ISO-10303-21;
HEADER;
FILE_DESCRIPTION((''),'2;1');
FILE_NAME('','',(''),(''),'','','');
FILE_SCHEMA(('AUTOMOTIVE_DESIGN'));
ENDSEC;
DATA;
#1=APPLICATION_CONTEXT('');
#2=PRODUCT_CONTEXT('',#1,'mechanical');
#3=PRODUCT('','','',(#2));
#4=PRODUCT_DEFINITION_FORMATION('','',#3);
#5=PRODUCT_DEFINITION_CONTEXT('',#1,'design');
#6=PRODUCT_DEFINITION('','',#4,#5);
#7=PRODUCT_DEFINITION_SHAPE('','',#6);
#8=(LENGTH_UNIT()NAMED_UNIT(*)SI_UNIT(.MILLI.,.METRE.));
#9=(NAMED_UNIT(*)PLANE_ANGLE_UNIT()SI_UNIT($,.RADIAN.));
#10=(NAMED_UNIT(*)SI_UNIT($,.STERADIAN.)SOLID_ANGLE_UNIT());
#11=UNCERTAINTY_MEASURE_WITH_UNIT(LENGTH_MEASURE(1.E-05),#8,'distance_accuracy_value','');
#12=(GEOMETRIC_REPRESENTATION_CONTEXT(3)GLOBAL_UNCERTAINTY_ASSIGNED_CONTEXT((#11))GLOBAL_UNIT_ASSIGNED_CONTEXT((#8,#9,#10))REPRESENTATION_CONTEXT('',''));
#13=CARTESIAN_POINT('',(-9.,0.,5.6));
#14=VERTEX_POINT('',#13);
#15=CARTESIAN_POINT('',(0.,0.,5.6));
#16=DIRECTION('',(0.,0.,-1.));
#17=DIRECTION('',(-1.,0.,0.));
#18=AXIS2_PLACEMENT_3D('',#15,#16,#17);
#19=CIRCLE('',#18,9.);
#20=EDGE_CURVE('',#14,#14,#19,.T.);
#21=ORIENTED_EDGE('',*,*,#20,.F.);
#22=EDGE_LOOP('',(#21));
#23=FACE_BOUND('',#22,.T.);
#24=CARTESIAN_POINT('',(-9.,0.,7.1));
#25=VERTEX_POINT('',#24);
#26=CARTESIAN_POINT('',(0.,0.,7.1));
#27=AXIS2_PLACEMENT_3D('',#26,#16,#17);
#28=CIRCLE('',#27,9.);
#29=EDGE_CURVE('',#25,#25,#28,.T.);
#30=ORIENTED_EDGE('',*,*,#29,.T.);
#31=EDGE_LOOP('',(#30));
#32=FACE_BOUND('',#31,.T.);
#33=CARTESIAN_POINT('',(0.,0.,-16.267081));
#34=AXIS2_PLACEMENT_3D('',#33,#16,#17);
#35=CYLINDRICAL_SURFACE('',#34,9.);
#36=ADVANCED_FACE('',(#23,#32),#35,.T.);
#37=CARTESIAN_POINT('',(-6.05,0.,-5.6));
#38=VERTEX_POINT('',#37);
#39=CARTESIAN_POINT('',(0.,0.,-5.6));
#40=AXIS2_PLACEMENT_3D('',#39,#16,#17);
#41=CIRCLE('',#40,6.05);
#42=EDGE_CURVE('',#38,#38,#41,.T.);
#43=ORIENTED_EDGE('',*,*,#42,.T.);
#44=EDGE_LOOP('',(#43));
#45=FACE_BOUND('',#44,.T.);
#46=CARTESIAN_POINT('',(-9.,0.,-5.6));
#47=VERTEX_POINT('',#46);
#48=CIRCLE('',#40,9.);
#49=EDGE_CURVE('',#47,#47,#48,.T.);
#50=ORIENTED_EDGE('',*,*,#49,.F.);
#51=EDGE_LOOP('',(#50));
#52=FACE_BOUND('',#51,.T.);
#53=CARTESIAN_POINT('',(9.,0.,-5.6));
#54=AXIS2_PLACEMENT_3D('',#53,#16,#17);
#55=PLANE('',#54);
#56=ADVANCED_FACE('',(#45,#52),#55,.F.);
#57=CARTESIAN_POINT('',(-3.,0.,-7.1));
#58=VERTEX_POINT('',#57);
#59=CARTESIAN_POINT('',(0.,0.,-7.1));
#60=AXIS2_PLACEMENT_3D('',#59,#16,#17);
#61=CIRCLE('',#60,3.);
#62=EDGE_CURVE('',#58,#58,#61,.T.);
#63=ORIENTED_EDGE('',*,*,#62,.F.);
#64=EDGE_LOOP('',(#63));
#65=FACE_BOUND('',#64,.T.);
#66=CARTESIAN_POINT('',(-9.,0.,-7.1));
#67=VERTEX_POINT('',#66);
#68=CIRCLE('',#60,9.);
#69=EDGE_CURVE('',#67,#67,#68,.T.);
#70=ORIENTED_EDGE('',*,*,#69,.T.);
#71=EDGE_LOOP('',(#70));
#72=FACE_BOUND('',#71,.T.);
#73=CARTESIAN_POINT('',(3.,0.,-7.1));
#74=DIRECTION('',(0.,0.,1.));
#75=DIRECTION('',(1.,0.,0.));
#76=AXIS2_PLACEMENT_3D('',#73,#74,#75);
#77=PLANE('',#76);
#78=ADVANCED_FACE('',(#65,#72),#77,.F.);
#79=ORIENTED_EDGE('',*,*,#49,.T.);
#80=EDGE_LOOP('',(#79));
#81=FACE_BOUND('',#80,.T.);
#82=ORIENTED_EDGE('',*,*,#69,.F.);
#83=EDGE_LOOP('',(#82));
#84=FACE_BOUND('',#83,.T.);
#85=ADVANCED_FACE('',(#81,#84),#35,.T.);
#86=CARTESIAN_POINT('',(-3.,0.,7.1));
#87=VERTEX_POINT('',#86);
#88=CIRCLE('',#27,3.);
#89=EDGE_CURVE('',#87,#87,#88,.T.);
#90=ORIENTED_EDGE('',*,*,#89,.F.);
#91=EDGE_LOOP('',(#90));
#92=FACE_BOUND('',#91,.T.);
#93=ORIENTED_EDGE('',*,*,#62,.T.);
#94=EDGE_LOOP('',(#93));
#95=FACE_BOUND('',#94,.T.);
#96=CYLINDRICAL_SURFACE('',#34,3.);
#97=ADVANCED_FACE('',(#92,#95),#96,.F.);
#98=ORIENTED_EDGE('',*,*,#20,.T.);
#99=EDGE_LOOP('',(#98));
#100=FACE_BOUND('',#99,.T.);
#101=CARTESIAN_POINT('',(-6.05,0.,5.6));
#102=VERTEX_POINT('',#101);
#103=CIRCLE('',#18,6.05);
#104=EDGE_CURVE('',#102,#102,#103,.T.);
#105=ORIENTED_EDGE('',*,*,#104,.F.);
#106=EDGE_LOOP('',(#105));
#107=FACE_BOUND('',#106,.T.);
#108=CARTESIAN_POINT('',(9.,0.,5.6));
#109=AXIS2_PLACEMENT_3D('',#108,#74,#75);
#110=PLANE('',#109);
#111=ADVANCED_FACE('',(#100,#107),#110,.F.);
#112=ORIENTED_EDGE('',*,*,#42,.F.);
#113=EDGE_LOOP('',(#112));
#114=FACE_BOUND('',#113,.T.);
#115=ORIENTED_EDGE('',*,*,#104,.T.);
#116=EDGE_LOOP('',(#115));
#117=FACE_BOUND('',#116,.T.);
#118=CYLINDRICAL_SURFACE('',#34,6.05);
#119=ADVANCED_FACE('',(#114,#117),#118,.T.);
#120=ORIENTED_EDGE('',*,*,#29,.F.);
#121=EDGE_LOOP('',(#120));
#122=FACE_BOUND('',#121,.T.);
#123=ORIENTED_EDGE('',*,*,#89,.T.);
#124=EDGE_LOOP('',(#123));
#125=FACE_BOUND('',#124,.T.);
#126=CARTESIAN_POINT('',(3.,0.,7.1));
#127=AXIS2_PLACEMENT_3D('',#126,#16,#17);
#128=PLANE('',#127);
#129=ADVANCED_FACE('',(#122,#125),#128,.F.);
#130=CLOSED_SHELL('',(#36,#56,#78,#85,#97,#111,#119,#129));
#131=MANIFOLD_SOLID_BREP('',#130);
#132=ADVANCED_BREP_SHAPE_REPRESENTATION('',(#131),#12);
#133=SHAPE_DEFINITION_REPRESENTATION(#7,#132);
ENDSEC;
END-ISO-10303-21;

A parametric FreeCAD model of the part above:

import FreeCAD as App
import Part
import Sketcher
from FreeCAD import Vector
Q = App.Units.Quantity

doc = App.newDocument("Part")
body = doc.addObject("PartDesign::Body", "Body")

# Sketch on XZ plane
sketch1 = body.newObject("Sketcher::SketchObject", "Sketch")
sketch1.AttachmentSupport = (doc.getObject("XZ_Plane"), [""])
sketch1.MapMode = "FlatFace"
sketch1.addGeometry([
    Part.LineSegment(Vector(3, -7.1, 0), Vector(3, 7.1, 0)),  # 0
    Part.LineSegment(Vector(3, 7.1, 0), Vector(9, 7.1, 0)),  # 1
    Part.LineSegment(Vector(9, 7.1, 0), Vector(9, 5.6, 0)),  # 2
    Part.LineSegment(Vector(9, 5.6, 0), Vector(6, 5.6, 0)),  # 3
    Part.LineSegment(Vector(6, 5.6, 0), Vector(6, -5.6, 0)),  # 4
    Part.LineSegment(Vector(6, -5.6, 0), Vector(9, -5.6, 0)),  # 5
    Part.LineSegment(Vector(9, -5.6, 0), Vector(9, -7.1, 0)),  # 6
    Part.LineSegment(Vector(9, -7.1, 0), Vector(3, -7.1, 0)),  # 7
], False)
sketch1.addConstraint([
    Sketcher.Constraint("Coincident", 0, 2, 1, 1),
    Sketcher.Constraint("Coincident", 1, 2, 2, 1),
    Sketcher.Constraint("Coincident", 2, 2, 3, 1),
    Sketcher.Constraint("Coincident", 3, 2, 4, 1),
    Sketcher.Constraint("Coincident", 4, 2, 5, 1),
    Sketcher.Constraint("Coincident", 5, 2, 6, 1),
    Sketcher.Constraint("Coincident", 6, 2, 7, 1),
    Sketcher.Constraint("Coincident", 7, 2, 0, 1),
    Sketcher.Constraint("Vertical", 0),
    Sketcher.Constraint("Horizontal", 1),
    Sketcher.Constraint("Vertical", 2),
    Sketcher.Constraint("Horizontal", 3),
    Sketcher.Constraint("Vertical", 4),
    Sketcher.Constraint("Horizontal", 5),
    Sketcher.Constraint("Vertical", 6),
    Sketcher.Constraint("Horizontal", 7),
    Sketcher.Constraint("Symmetric", 2, 2, 5, 2, -1),
    Sketcher.Constraint("Equal", 2, 6),
    Sketcher.Constraint("DistanceX", 1, 1, 1, 2, Q("6 mm")),
    Sketcher.Constraint("DistanceY", 0, 1, 0, 2, Q("14.2 mm")),
    Sketcher.Constraint("DistanceY", 2, 2, 2, 1, Q("1.5 mm")),
    Sketcher.Constraint("DistanceX", -1, 1, 0, 2, Q("3 mm")),
    Sketcher.Constraint("DistanceX", 3, 2, 3, 1, Q("2.95 mm")),
])
revolution = body.newObject("PartDesign::Revolution", "Revolution")
revolution.Profile = sketch1
revolution.ReferenceAxis = (sketch1, ["V_Axis"])
revolution.Angle = 360

doc.recompute()
